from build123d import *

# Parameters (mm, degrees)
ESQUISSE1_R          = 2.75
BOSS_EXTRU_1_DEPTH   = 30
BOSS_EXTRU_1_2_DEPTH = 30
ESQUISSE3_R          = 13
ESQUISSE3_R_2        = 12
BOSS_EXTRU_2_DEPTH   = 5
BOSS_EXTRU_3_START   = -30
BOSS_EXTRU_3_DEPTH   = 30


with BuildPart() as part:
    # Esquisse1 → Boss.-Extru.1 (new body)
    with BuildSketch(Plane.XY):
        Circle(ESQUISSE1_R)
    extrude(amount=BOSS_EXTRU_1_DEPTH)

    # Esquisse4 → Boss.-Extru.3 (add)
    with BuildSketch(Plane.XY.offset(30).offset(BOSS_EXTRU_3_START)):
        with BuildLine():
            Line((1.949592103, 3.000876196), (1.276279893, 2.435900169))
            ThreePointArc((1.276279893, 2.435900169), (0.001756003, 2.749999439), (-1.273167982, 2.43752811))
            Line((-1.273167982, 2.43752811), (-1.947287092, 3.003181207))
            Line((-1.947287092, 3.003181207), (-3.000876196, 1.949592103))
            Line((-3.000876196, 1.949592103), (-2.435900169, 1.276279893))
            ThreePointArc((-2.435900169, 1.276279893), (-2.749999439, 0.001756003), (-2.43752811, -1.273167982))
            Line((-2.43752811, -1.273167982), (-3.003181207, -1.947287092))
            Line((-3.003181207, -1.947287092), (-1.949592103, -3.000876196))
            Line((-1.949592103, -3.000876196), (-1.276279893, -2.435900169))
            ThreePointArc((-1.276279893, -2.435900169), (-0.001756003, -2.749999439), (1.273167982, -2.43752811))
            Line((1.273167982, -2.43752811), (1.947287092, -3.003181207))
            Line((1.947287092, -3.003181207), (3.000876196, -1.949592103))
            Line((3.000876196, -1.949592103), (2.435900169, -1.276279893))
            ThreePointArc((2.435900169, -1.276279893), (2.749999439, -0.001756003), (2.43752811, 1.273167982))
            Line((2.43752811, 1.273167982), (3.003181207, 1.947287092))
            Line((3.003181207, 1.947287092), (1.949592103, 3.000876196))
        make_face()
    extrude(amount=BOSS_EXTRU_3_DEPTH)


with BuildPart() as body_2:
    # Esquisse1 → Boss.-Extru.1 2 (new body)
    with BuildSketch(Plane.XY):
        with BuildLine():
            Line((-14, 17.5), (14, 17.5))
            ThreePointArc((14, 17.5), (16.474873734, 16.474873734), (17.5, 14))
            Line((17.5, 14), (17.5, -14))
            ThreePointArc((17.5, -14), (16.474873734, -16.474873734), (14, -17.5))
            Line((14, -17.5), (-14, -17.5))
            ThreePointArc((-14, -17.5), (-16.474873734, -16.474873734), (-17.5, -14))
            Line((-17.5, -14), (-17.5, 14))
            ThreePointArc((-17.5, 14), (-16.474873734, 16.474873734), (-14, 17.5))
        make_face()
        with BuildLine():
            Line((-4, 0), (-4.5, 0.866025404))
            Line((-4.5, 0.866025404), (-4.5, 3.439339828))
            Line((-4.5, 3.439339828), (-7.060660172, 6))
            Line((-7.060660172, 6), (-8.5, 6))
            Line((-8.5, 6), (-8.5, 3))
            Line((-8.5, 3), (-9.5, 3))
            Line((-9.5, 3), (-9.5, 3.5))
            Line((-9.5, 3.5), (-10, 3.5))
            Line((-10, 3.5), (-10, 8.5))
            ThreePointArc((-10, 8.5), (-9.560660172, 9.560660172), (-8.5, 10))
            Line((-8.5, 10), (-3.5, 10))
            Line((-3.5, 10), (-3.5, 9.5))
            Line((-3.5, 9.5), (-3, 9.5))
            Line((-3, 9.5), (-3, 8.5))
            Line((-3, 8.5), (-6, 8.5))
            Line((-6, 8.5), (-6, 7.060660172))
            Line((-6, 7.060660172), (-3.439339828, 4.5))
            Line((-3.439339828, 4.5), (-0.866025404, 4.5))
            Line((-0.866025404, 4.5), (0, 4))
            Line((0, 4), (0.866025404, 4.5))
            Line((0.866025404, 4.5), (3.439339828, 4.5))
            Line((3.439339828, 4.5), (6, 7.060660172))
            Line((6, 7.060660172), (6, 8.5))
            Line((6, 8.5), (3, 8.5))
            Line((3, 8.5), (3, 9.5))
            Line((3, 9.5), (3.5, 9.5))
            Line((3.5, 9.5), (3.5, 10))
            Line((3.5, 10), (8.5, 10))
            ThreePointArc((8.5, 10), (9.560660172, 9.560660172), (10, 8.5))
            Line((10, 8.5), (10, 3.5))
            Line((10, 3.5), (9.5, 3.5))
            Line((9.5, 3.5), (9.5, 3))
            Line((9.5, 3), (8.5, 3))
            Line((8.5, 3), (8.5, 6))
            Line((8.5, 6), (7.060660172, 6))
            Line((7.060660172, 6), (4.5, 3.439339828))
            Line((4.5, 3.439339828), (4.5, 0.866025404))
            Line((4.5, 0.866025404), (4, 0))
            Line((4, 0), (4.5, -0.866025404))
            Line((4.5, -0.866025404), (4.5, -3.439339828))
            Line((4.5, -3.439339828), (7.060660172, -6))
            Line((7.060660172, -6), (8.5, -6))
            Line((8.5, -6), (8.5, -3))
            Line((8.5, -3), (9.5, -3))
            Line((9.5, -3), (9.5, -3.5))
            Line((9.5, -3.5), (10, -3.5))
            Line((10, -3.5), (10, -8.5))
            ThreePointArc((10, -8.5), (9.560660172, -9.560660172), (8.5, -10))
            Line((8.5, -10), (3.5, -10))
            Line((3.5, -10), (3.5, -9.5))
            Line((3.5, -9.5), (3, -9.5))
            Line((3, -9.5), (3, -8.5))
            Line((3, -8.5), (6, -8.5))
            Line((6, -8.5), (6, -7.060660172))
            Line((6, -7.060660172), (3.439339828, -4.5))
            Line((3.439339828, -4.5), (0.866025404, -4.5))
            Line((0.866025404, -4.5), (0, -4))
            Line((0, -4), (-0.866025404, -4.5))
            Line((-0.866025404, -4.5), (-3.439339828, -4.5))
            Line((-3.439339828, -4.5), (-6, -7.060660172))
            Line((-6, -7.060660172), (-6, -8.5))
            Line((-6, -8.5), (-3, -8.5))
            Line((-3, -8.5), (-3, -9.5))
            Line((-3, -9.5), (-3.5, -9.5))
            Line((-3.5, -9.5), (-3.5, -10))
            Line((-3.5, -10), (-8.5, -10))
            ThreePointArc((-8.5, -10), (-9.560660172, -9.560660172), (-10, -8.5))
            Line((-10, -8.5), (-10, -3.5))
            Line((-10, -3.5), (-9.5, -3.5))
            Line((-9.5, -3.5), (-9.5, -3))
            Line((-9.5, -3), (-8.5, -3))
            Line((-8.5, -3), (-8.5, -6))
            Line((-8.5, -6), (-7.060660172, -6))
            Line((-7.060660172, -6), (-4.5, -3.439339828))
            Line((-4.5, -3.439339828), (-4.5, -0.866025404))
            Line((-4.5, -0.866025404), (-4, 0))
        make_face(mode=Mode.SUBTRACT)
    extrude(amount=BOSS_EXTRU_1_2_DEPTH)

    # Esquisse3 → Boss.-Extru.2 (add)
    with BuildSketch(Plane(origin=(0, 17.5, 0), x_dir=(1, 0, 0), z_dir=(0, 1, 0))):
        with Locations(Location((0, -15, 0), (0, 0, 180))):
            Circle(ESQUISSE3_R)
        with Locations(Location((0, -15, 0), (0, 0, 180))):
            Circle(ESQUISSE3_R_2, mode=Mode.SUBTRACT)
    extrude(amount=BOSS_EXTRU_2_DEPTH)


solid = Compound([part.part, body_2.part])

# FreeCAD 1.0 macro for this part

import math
import FreeCAD as App
import Part
import Sketcher

V = App.Vector
Q = App.Units.Quantity

doc = App.newDocument("Part")
body = doc.addObject("PartDesign::Body", "Body")

sketch1 = body.newObject("Sketcher::SketchObject", "Sketch")
sketch1.AttachmentSupport = (doc.getObject("XY_Plane"), [""])
sketch1.MapMode = "FlatFace"
sketch1.addGeometry(Part.Circle(V(0, 0, 0), V(0, 0, 1), 2.8), False)
sketch1.addConstraint(Sketcher.Constraint("Coincident", 0, 3, -1, 1))
sketch1.addConstraint(Sketcher.Constraint("Diameter", 0, Q("5.5 mm")))
pad1 = body.newObject("PartDesign::Pad", "Pad")
pad1.Profile = sketch1
pad1.Length = 30

sketch2 = body.newObject("Sketcher::SketchObject", "Sketch001")
sketch2.AttachmentSupport = (doc.getObject("XY_Plane"), [""])
sketch2.MapMode = "FlatFace"
sketch2.addGeometry(Part.LineSegment(V(1.9, 3, 0), V(1.3, 2.4, 0)), False)
sketch2.addGeometry(Part.ArcOfCircle(Part.Circle(V(0, 0, 0), V(0, 0, 1), 2.8), math.radians(62), math.radians(118)), False)
sketch2.addGeometry(Part.LineSegment(V(-1.3, 2.4, 0), V(-1.9, 3, 0)), False)
sketch2.addGeometry(Part.LineSegment(V(-1.9, 3, 0), V(-3, 1.9, 0)), False)
sketch2.addGeometry(Part.LineSegment(V(-3, 1.9, 0), V(-2.4, 1.3, 0)), False)
sketch2.addGeometry(Part.ArcOfCircle(Part.Circle(V(0, 0, 0), V(0, 0, 1), 2.8), math.radians(152), math.radians(208)), False)
sketch2.addGeometry(Part.LineSegment(V(-2.4, -1.3, 0), V(-3, -1.9, 0)), False)
sketch2.addGeometry(Part.LineSegment(V(-3, -1.9, 0), V(-1.9, -3, 0)), False)
sketch2.addGeometry(Part.LineSegment(V(-1.9, -3, 0), V(-1.3, -2.4, 0)), False)
sketch2.addGeometry(Part.ArcOfCircle(Part.Circle(V(0, 0, 0), V(0, 0, 1), 2.8), math.radians(-118), math.radians(-62)), False)
sketch2.addGeometry(Part.LineSegment(V(1.3, -2.4, 0), V(1.9, -3, 0)), False)
sketch2.addGeometry(Part.LineSegment(V(1.9, -3, 0), V(3, -1.9, 0)), False)
sketch2.addGeometry(Part.LineSegment(V(3, -1.9, 0), V(2.4, -1.3, 0)), False)
sketch2.addGeometry(Part.ArcOfCircle(Part.Circle(V(0, 0, 0), V(0, 0, 1), 2.8), math.radians(-28), math.radians(28)), False)
sketch2.addGeometry(Part.LineSegment(V(2.4, 1.3, 0), V(3, 1.9, 0)), False)
sketch2.addGeometry(Part.LineSegment(V(3, 1.9, 0), V(1.9, 3, 0)), False)
sketch2.addConstraint(Sketcher.Constraint("Coincident", 0, 2, 1, 1))
sketch2.addConstraint(Sketcher.Constraint("Coincident", 1, 2, 2, 1))
sketch2.addConstraint(Sketcher.Constraint("Coincident", 2, 2, 3, 1))
sketch2.addConstraint(Sketcher.Constraint("Coincident", 3, 2, 4, 1))
sketch2.addConstraint(Sketcher.Constraint("Coincident", 4, 2, 5, 1))
sketch2.addConstraint(Sketcher.Constraint("Coincident", 5, 2, 6, 1))
sketch2.addConstraint(Sketcher.Constraint("Coincident", 6, 2, 7, 1))
sketch2.addConstraint(Sketcher.Constraint("Coincident", 7, 2, 8, 1))
sketch2.addConstraint(Sketcher.Constraint("Coincident", 8, 2, 9, 1))
sketch2.addConstraint(Sketcher.Constraint("Coincident", 9, 2, 10, 1))
sketch2.addConstraint(Sketcher.Constraint("Coincident", 10, 2, 11, 1))
sketch2.addConstraint(Sketcher.Constraint("Coincident", 11, 2, 12, 1))
sketch2.addConstraint(Sketcher.Constraint("Coincident", 12, 2, 13, 1))
sketch2.addConstraint(Sketcher.Constraint("Coincident", 13, 2, 14, 1))
sketch2.addConstraint(Sketcher.Constraint("Coincident", 14, 2, 15, 1))
sketch2.addConstraint(Sketcher.Constraint("Coincident", 15, 2, 0, 1))
sketch2.addConstraint(Sketcher.Constraint("Coincident", 1, 3, -1, 1))
sketch2.addConstraint(Sketcher.Constraint("Coincident", 5, 3, -1, 1))
sketch2.addConstraint(Sketcher.Constraint("Coincident", 9, 3, -1, 1))
sketch2.addConstraint(Sketcher.Constraint("Coincident", 13, 3, -1, 1))
sketch2.addConstraint(Sketcher.Constraint("Equal", 1, 5))
sketch2.addConstraint(Sketcher.Constraint("Equal", 5, 9))
sketch2.addConstraint(Sketcher.Constraint("Equal", 9, 13))
sketch2.addConstraint(Sketcher.Constraint("Symmetric", 2, 2, 10, 2, -1, 1))
sketch2.addConstraint(Sketcher.Constraint("Symmetric", 3, 2, 11, 2, -1, 1))
sketch2.addConstraint(Sketcher.Constraint("Symmetric", 6, 2, 14, 2, -1, 1))
sketch2.addConstraint(Sketcher.Constraint("Symmetric", 7, 2, 15, 2, -1, 1))
sketch2.addConstraint(Sketcher.Constraint("Perpendicular", 0, 4))
sketch2.addConstraint(Sketcher.Constraint("Perpendicular", 2, 6))
sketch2.addConstraint(Sketcher.Constraint("Perpendicular", 3, 7))
sketch2.addConstraint(Sketcher.Constraint("Perpendicular", 4, 8))
sketch2.addConstraint(Sketcher.Constraint("Perpendicular", 6, 10))
sketch2.addConstraint(Sketcher.Constraint("Perpendicular", 8, 12))
sketch2.addConstraint(Sketcher.Constraint("Perpendicular", 10, 14))
sketch2.addConstraint(Sketcher.Constraint("Equal", 0, 4))
sketch2.addConstraint(Sketcher.Constraint("Equal", 2, 6))
sketch2.addConstraint(Sketcher.Constraint("Equal", 3, 7))
sketch2.addConstraint(Sketcher.Constraint("Angle", 0, Q("-140 deg")))
sketch2.addConstraint(Sketcher.Constraint("Angle", 2, Q("140 deg")))
sketch2.addConstraint(Sketcher.Constraint("Angle", 3, Q("-135 deg")))
sketch2.addConstraint(Sketcher.Constraint("Radius", 1, Q("2.75 mm")))
sketch2.addConstraint(Sketcher.Constraint("Distance", 2, Q("0.88 mm")))
sketch2.addConstraint(Sketcher.Constraint("Distance", 3, Q("1.49 mm")))
sketch2.addConstraint(Sketcher.Constraint("DistanceY", -1, 1, 0, 2, Q("2.4359 mm")))
pad2 = body.newObject("PartDesign::Pad", "Pad001")
pad2.Profile = sketch2
pad2.Length = 30
body2 = doc.addObject("PartDesign::Body", "Body001")

sketch3 = body2.newObject("Sketcher::SketchObject", "Sketch002")
sketch3.AttachmentSupport = (doc.getObject("XY_Plane001"), [""])
sketch3.MapMode = "FlatFace"
sketch3.addGeometry(Part.LineSegment(V(14, 17.5, 0), V(-14, 17.5, 0)), False)
sketch3.addGeometry(Part.ArcOfCircle(Part.Circle(V(-14, 14, 0), V(0, 0, 1), 3.5), math.radians(90), math.radians(180)), False)
sketch3.addGeometry(Part.LineSegment(V(-17.5, 14, 0), V(-17.5, -14, 0)), False)
sketch3.addGeometry(Part.ArcOfCircle(Part.Circle(V(-14, -14, 0), V(0, 0, 1), 3.5), math.radians(-180), math.radians(-90)), False)
sketch3.addGeometry(Part.LineSegment(V(-14, -17.5, 0), V(14, -17.5, 0)), False)
sketch3.addGeometry(Part.ArcOfCircle(Part.Circle(V(14, -14, 0), V(0, 0, 1), 3.5), math.radians(-90), math.radians(0)), False)
sketch3.addGeometry(Part.LineSegment(V(17.5, -14, 0), V(17.5, 14, 0)), False)
sketch3.addGeometry(Part.ArcOfCircle(Part.Circle(V(14, 14, 0), V(0, 0, 1), 3.5), math.radians(0), math.radians(90)), False)
sketch3.addGeometry(Part.LineSegment(V(-4, 0, 0), V(-4.5, 0.9, 0)), False)
sketch3.addGeometry(Part.LineSegment(V(-4.5, 0.9, 0), V(-4.5, 3.4, 0)), False)
sketch3.addGeometry(Part.LineSegment(V(-4.5, 3.4, 0), V(-7.1, 6, 0)), False)
sketch3.addGeometry(Part.LineSegment(V(-7.1, 6, 0), V(-8.5, 6, 0)), False)
sketch3.addGeometry(Part.LineSegment(V(-8.5, 6, 0), V(-8.5, 3, 0)), False)
sketch3.addGeometry(Part.LineSegment(V(-8.5, 3, 0), V(-9.5, 3, 0)), False)
sketch3.addGeometry(Part.LineSegment(V(-9.5, 3, 0), V(-9.5, 3.5, 0)), False)
sketch3.addGeometry(Part.LineSegment(V(-9.5, 3.5, 0), V(-10, 3.5, 0)), False)
sketch3.addGeometry(Part.LineSegment(V(-10, 3.5, 0), V(-10, 8.5, 0)), False)
sketch3.addGeometry(Part.ArcOfCircle(Part.Circle(V(-8.5, 8.5, 0), V(0, 0, 1), 1.5), math.radians(90), math.radians(180)), False)
sketch3.addGeometry(Part.LineSegment(V(-8.5, 10, 0), V(-3.5, 10, 0)), False)
sketch3.addGeometry(Part.LineSegment(V(-3.5, 10, 0), V(-3.5, 9.5, 0)), False)
sketch3.addGeometry(Part.LineSegment(V(-3.5, 9.5, 0), V(-3, 9.5, 0)), False)
sketch3.addGeometry(Part.LineSegment(V(-3, 9.5, 0), V(-3, 8.5, 0)), False)
sketch3.addGeometry(Part.LineSegment(V(-3, 8.5, 0), V(-6, 8.5, 0)), False)
sketch3.addGeometry(Part.LineSegment(V(-6, 8.5, 0), V(-6, 7.1, 0)), False)
sketch3.addGeometry(Part.LineSegment(V(-6, 7.1, 0), V(-3.4, 4.5, 0)), False)
sketch3.addGeometry(Part.LineSegment(V(-3.4, 4.5, 0), V(-0.9, 4.5, 0)), False)
sketch3.addGeometry(Part.LineSegment(V(-0.9, 4.5, 0), V(0, 4, 0)), False)
sketch3.addGeometry(Part.LineSegment(V(0, 4, 0), V(0.9, 4.5, 0)), False)
sketch3.addGeometry(Part.LineSegment(V(0.9, 4.5, 0), V(3.4, 4.5, 0)), False)
sketch3.addGeometry(Part.LineSegment(V(3.4, 4.5, 0), V(6, 7.1, 0)), False)
sketch3.addGeometry(Part.LineSegment(V(6, 7.1, 0), V(6, 8.5, 0)), False)
sketch3.addGeometry(Part.LineSegment(V(6, 8.5, 0), V(3, 8.5, 0)), False)
sketch3.addGeometry(Part.LineSegment(V(3, 8.5, 0), V(3, 9.5, 0)), False)
sketch3.addGeometry(Part.LineSegment(V(3, 9.5, 0), V(3.5, 9.5, 0)), False)
sketch3.addGeometry(Part.LineSegment(V(3.5, 9.5, 0), V(3.5, 10, 0)), False)
sketch3.addGeometry(Part.LineSegment(V(3.5, 10, 0), V(8.5, 10, 0)), False)
sketch3.addGeometry(Part.ArcOfCircle(Part.Circle(V(8.5, 8.5, 0), V(0, 0, 1), 1.5), math.radians(0), math.radians(90)), False)
sketch3.addGeometry(Part.LineSegment(V(10, 8.5, 0), V(10, 3.5, 0)), False)
sketch3.addGeometry(Part.LineSegment(V(10, 3.5, 0), V(9.5, 3.5, 0)), False)
sketch3.addGeometry(Part.LineSegment(V(9.5, 3.5, 0), V(9.5, 3, 0)), False)
sketch3.addGeometry(Part.LineSegment(V(9.5, 3, 0), V(8.5, 3, 0)), False)
sketch3.addGeometry(Part.LineSegment(V(8.5, 3, 0), V(8.5, 6, 0)), False)
sketch3.addGeometry(Part.LineSegment(V(8.5, 6, 0), V(7.1, 6, 0)), False)
sketch3.addGeometry(Part.LineSegment(V(7.1, 6, 0), V(4.5, 3.4, 0)), False)
sketch3.addGeometry(Part.LineSegment(V(4.5, 3.4, 0), V(4.5, 0.9, 0)), False)
sketch3.addGeometry(Part.LineSegment(V(4.5, 0.9, 0), V(4, 0, 0)), False)
sketch3.addGeometry(Part.LineSegment(V(4, 0, 0), V(4.5, -0.9, 0)), False)
sketch3.addGeometry(Part.LineSegment(V(4.5, -0.9, 0), V(4.5, -3.4, 0)), False)
sketch3.addGeometry(Part.LineSegment(V(4.5, -3.4, 0), V(7.1, -6, 0)), False)
sketch3.addGeometry(Part.LineSegment(V(7.1, -6, 0), V(8.5, -6, 0)), False)
sketch3.addGeometry(Part.LineSegment(V(8.5, -6, 0), V(8.5, -3, 0)), False)
sketch3.addGeometry(Part.LineSegment(V(8.5, -3, 0), V(9.5, -3, 0)), False)
sketch3.addGeometry(Part.LineSegment(V(9.5, -3, 0), V(9.5, -3.5, 0)), False)
sketch3.addGeometry(Part.LineSegment(V(9.5, -3.5, 0), V(10, -3.5, 0)), False)
sketch3.addGeometry(Part.LineSegment(V(10, -3.5, 0), V(10, -8.5, 0)), False)
sketch3.addGeometry(Part.ArcOfCircle(Part.Circle(V(8.5, -8.5, 0), V(0, 0, 1), 1.5), math.radians(-90), math.radians(0)), False)
sketch3.addGeometry(Part.LineSegment(V(8.5, -10, 0), V(3.5, -10, 0)), False)
sketch3.addGeometry(Part.LineSegment(V(3.5, -10, 0), V(3.5, -9.5, 0)), False)
sketch3.addGeometry(Part.LineSegment(V(3.5, -9.5, 0), V(3, -9.5, 0)), False)
sketch3.addGeometry(Part.LineSegment(V(3, -9.5, 0), V(3, -8.5, 0)), False)
sketch3.addGeometry(Part.LineSegment(V(3, -8.5, 0), V(6, -8.5, 0)), False)
sketch3.addGeometry(Part.LineSegment(V(6, -8.5, 0), V(6, -7.1, 0)), False)
sketch3.addGeometry(Part.LineSegment(V(6, -7.1, 0), V(3.4, -4.5, 0)), False)
sketch3.addGeometry(Part.LineSegment(V(3.4, -4.5, 0), V(0.9, -4.5, 0)), False)
sketch3.addGeometry(Part.LineSegment(V(0.9, -4.5, 0), V(0, -4, 0)), False)
sketch3.addGeometry(Part.LineSegment(V(0, -4, 0), V(-0.9, -4.5, 0)), False)
sketch3.addGeometry(Part.LineSegment(V(-0.9, -4.5, 0), V(-3.4, -4.5, 0)), False)
sketch3.addGeometry(Part.LineSegment(V(-3.4, -4.5, 0), V(-6, -7.1, 0)), False)
sketch3.addGeometry(Part.LineSegment(V(-6, -7.1, 0), V(-6, -8.5, 0)), False)
sketch3.addGeometry(Part.LineSegment(V(-6, -8.5, 0), V(-3, -8.5, 0)), False)
sketch3.addGeometry(Part.LineSegment(V(-3, -8.5, 0), V(-3, -9.5, 0)), False)
sketch3.addGeometry(Part.LineSegment(V(-3, -9.5, 0), V(-3.5, -9.5, 0)), False)
sketch3.addGeometry(Part.LineSegment(V(-3.5, -9.5, 0), V(-3.5, -10, 0)), False)
sketch3.addGeometry(Part.LineSegment(V(-3.5, -10, 0), V(-8.5, -10, 0)), False)
sketch3.addGeometry(Part.ArcOfCircle(Part.Circle(V(-8.5, -8.5, 0), V(0, 0, 1), 1.5), math.radians(180), math.radians(270)), False)
sketch3.addGeometry(Part.LineSegment(V(-10, -8.5, 0), V(-10, -3.5, 0)), False)
sketch3.addGeometry(Part.LineSegment(V(-10, -3.5, 0), V(-9.5, -3.5, 0)), False)
sketch3.addGeometry(Part.LineSegment(V(-9.5, -3.5, 0), V(-9.5, -3, 0)), False)
sketch3.addGeometry(Part.LineSegment(V(-9.5, -3, 0), V(-8.5, -3, 0)), False)
sketch3.addGeometry(Part.LineSegment(V(-8.5, -3, 0), V(-8.5, -6, 0)), False)
sketch3.addGeometry(Part.LineSegment(V(-8.5, -6, 0), V(-7.1, -6, 0)), False)
sketch3.addGeometry(Part.LineSegment(V(-7.1, -6, 0), V(-4.5, -3.4, 0)), False)
sketch3.addGeometry(Part.LineSegment(V(-4.5, -3.4, 0), V(-4.5, -0.9, 0)), False)
sketch3.addGeometry(Part.LineSegment(V(-4.5, -0.9, 0), V(-4, 0, 0)), False)
sketch3.addConstraint(Sketcher.Constraint("Tangent", 0, 2, 1, 1))
sketch3.addConstraint(Sketcher.Constraint("Tangent", 1, 2, 2, 1))
sketch3.addConstraint(Sketcher.Constraint("Tangent", 2, 2, 3, 1))
sketch3.addConstraint(Sketcher.Constraint("Tangent", 3, 2, 4, 1))
sketch3.addConstraint(Sketcher.Constraint("Tangent", 4, 2, 5, 1))
sketch3.addConstraint(Sketcher.Constraint("Tangent", 5, 2, 6, 1))
sketch3.addConstraint(Sketcher.Constraint("Tangent", 6, 2, 7, 1))
sketch3.addConstraint(Sketcher.Constraint("Tangent", 7, 2, 0, 1))
sketch3.addConstraint(Sketcher.Constraint("Coincident", 8, 2, 9, 1))
sketch3.addConstraint(Sketcher.Constraint("Coincident", 9, 2, 10, 1))
sketch3.addConstraint(Sketcher.Constraint("Coincident", 10, 2, 11, 1))
sketch3.addConstraint(Sketcher.Constraint("Coincident", 11, 2, 12, 1))
sketch3.addConstraint(Sketcher.Constraint("Coincident", 12, 2, 13, 1))
sketch3.addConstraint(Sketcher.Constraint("Coincident", 13, 2, 14, 1))
sketch3.addConstraint(Sketcher.Constraint("Coincident", 14, 2, 15, 1))
sketch3.addConstraint(Sketcher.Constraint("Coincident", 15, 2, 16, 1))
sketch3.addConstraint(Sketcher.Constraint("Tangent", 16, 2, 17, 2))
sketch3.addConstraint(Sketcher.Constraint("Tangent", 17, 1, 18, 1))
sketch3.addConstraint(Sketcher.Constraint("Coincident", 18, 2, 19, 1))
sketch3.addConstraint(Sketcher.Constraint("Coincident", 19, 2, 20, 1))
sketch3.addConstraint(Sketcher.Constraint("Coincident", 20, 2, 21, 1))
sketch3.addConstraint(Sketcher.Constraint("Coincident", 21, 2, 22, 1))
sketch3.addConstraint(Sketcher.Constraint("Coincident", 22, 2, 23, 1))
sketch3.addConstraint(Sketcher.Constraint("Coincident", 23, 2, 24, 1))
sketch3.addConstraint(Sketcher.Constraint("Coincident", 24, 2, 25, 1))
sketch3.addConstraint(Sketcher.Constraint("Coincident", 25, 2, 26, 1))
sketch3.addConstraint(Sketcher.Constraint("Coincident", 26, 2, 27, 1))
sketch3.addConstraint(Sketcher.Constraint("Coincident", 27, 2, 28, 1))
sketch3.addConstraint(Sketcher.Constraint("Coincident", 28, 2, 29, 1))
sketch3.addConstraint(Sketcher.Constraint("Coincident", 29, 2, 30, 1))
sketch3.addConstraint(Sketcher.Constraint("Coincident", 30, 2, 31, 1))
sketch3.addConstraint(Sketcher.Constraint("Coincident", 31, 2, 32, 1))
sketch3.addConstraint(Sketcher.Constraint("Coincident", 32, 2, 33, 1))
sketch3.addConstraint(Sketcher.Constraint("Coincident", 33, 2, 34, 1))
sketch3.addConstraint(Sketcher.Constraint("Coincident", 34, 2, 35, 1))
sketch3.addConstraint(Sketcher.Constraint("Tangent", 35, 2, 36, 2))
sketch3.addConstraint(Sketcher.Constraint("Tangent", 36, 1, 37, 1))
sketch3.addConstraint(Sketcher.Constraint("Coincident", 37, 2, 38, 1))
sketch3.addConstraint(Sketcher.Constraint("Coincident", 38, 2, 39, 1))
sketch3.addConstraint(Sketcher.Constraint("Coincident", 39, 2, 40, 1))
sketch3.addConstraint(Sketcher.Constraint("Coincident", 40, 2, 41, 1))
sketch3.addConstraint(Sketcher.Constraint("Coincident", 41, 2, 42, 1))
sketch3.addConstraint(Sketcher.Constraint("Coincident", 42, 2, 43, 1))
sketch3.addConstraint(Sketcher.Constraint("Coincident", 43, 2, 44, 1))
sketch3.addConstraint(Sketcher.Constraint("Coincident", 44, 2, 45, 1))
sketch3.addConstraint(Sketcher.Constraint("Coincident", 45, 2, 46, 1))
sketch3.addConstraint(Sketcher.Constraint("Coincident", 46, 2, 47, 1))
sketch3.addConstraint(Sketcher.Constraint("Coincident", 47, 2, 48, 1))
sketch3.addConstraint(Sketcher.Constraint("Coincident", 48, 2, 49, 1))
sketch3.addConstraint(Sketcher.Constraint("Coincident", 49, 2, 50, 1))
sketch3.addConstraint(Sketcher.Constraint("Coincident", 50, 2, 51, 1))
sketch3.addConstraint(Sketcher.Constraint("Coincident", 51, 2, 52, 1))
sketch3.addConstraint(Sketcher.Constraint("Coincident", 52, 2, 53, 1))
sketch3.addConstraint(Sketcher.Constraint("Coincident", 53, 2, 54, 1))
sketch3.addConstraint(Sketcher.Constraint("Tangent", 54, 2, 55, 2))
sketch3.addConstraint(Sketcher.Constraint("Tangent", 55, 1, 56, 1))
sketch3.addConstraint(Sketcher.Constraint("Coincident", 56, 2, 57, 1))
sketch3.addConstraint(Sketcher.Constraint("Coincident", 57, 2, 58, 1))
sketch3.addConstraint(Sketcher.Constraint("Coincident", 58, 2, 59, 1))
sketch3.addConstraint(Sketcher.Constraint("Coincident", 59, 2, 60, 1))
sketch3.addConstraint(Sketcher.Constraint("Coincident", 60, 2, 61, 1))
sketch3.addConstraint(Sketcher.Constraint("Coincident", 61, 2, 62, 1))
sketch3.addConstraint(Sketcher.Constraint("Coincident", 62, 2, 63, 1))
sketch3.addConstraint(Sketcher.Constraint("Coincident", 63, 2, 64, 1))
sketch3.addConstraint(Sketcher.Constraint("Coincident", 64, 2, 65, 1))
sketch3.addConstraint(Sketcher.Constraint("Coincident", 65, 2, 66, 1))
sketch3.addConstraint(Sketcher.Constraint("Coincident", 66, 2, 67, 1))
sketch3.addConstraint(Sketcher.Constraint("Coincident", 67, 2, 68, 1))
sketch3.addConstraint(Sketcher.Constraint("Coincident", 68, 2, 69, 1))
sketch3.addConstraint(Sketcher.Constraint("Coincident", 69, 2, 70, 1))
sketch3.addConstraint(Sketcher.Constraint("Coincident", 70, 2, 71, 1))
sketch3.addConstraint(Sketcher.Constraint("Coincident", 71, 2, 72, 1))
sketch3.addConstraint(Sketcher.Constraint("Coincident", 72, 2, 73, 1))
sketch3.addConstraint(Sketcher.Constraint("Tangent", 73, 2, 74, 2))
sketch3.addConstraint(Sketcher.Constraint("Tangent", 74, 1, 75, 1))
sketch3.addConstraint(Sketcher.Constraint("Coincident", 75, 2, 76, 1))
sketch3.addConstraint(Sketcher.Constraint("Coincident", 76, 2, 77, 1))
sketch3.addConstraint(Sketcher.Constraint("Coincident", 77, 2, 78, 1))
sketch3.addConstraint(Sketcher.Constraint("Coincident", 78, 2, 79, 1))
sketch3.addConstraint(Sketcher.Constraint("Coincident", 79, 2, 80, 1))
sketch3.addConstraint(Sketcher.Constraint("Coincident", 80, 2, 81, 1))
sketch3.addConstraint(Sketcher.Constraint("Coincident", 81, 2, 82, 1))
sketch3.addConstraint(Sketcher.Constraint("Coincident", 82, 2, 83, 1))
sketch3.addConstraint(Sketcher.Constraint("Coincident", 83, 2, 8, 1))
sketch3.addConstraint(Sketcher.Constraint("Horizontal", 0))
sketch3.addConstraint(Sketcher.Constraint("Vertical", 2))
sketch3.addConstraint(Sketcher.Constraint("Horizontal", 4))
sketch3.addConstraint(Sketcher.Constraint("Vertical", 6))
sketch3.addConstraint(Sketcher.Constraint("Vertical", 9))
sketch3.addConstraint(Sketcher.Constraint("Horizontal", 11))
sketch3.addConstraint(Sketcher.Constraint("Vertical", 12))
sketch3.addConstraint(Sketcher.Constraint("Horizontal", 13))
sketch3.addConstraint(Sketcher.Constraint("Vertical", 14))
sketch3.addConstraint(Sketcher.Constraint("Horizontal", 15))
sketch3.addConstraint(Sketcher.Constraint("Vertical", 16))
sketch3.addConstraint(Sketcher.Constraint("Horizontal", 18))
sketch3.addConstraint(Sketcher.Constraint("Vertical", 19))
sketch3.addConstraint(Sketcher.Constraint("Horizontal", 20))
sketch3.addConstraint(Sketcher.Constraint("Vertical", 21))
sketch3.addConstraint(Sketcher.Constraint("Horizontal", 22))
sketch3.addConstraint(Sketcher.Constraint("Vertical", 23))
sketch3.addConstraint(Sketcher.Constraint("Horizontal", 25))
sketch3.addConstraint(Sketcher.Constraint("Horizontal", 28))
sketch3.addConstraint(Sketcher.Constraint("Vertical", 30))
sketch3.addConstraint(Sketcher.Constraint("Horizontal", 31))
sketch3.addConstraint(Sketcher.Constraint("Vertical", 32))
sketch3.addConstraint(Sketcher.Constraint("Horizontal", 33))
sketch3.addConstraint(Sketcher.Constraint("Vertical", 34))
sketch3.addConstraint(Sketcher.Constraint("Horizontal", 35))
sketch3.addConstraint(Sketcher.Constraint("Vertical", 37))
sketch3.addConstraint(Sketcher.Constraint("Horizontal", 38))
sketch3.addConstraint(Sketcher.Constraint("Vertical", 39))
sketch3.addConstraint(Sketcher.Constraint("Horizontal", 40))
sketch3.addConstraint(Sketcher.Constraint("Vertical", 41))
sketch3.addConstraint(Sketcher.Constraint("Horizontal", 42))
sketch3.addConstraint(Sketcher.Constraint("Vertical", 44))
sketch3.addConstraint(Sketcher.Constraint("Vertical", 47))
sketch3.addConstraint(Sketcher.Constraint("Horizontal", 49))
sketch3.addConstraint(Sketcher.Constraint("Vertical", 50))
sketch3.addConstraint(Sketcher.Constraint("Horizontal", 51))
sketch3.addConstraint(Sketcher.Constraint("Vertical", 52))
sketch3.addConstraint(Sketcher.Constraint("Horizontal", 53))
sketch3.addConstraint(Sketcher.Constraint("Vertical", 54))
sketch3.addConstraint(Sketcher.Constraint("Horizontal", 56))
sketch3.addConstraint(Sketcher.Constraint("Vertical", 57))
sketch3.addConstraint(Sketcher.Constraint("Horizontal", 58))
sketch3.addConstraint(Sketcher.Constraint("Vertical", 59))
sketch3.addConstraint(Sketcher.Constraint("Horizontal", 60))
sketch3.addConstraint(Sketcher.Constraint("Vertical", 61))
sketch3.addConstraint(Sketcher.Constraint("Horizontal", 63))
sketch3.addConstraint(Sketcher.Constraint("Horizontal", 66))
sketch3.addConstraint(Sketcher.Constraint("Vertical", 68))
sketch3.addConstraint(Sketcher.Constraint("Horizontal", 69))
sketch3.addConstraint(Sketcher.Constraint("Vertical", 70))
sketch3.addConstraint(Sketcher.Constraint("Horizontal", 71))
sketch3.addConstraint(Sketcher.Constraint("Vertical", 72))
sketch3.addConstraint(Sketcher.Constraint("Horizontal", 73))
sketch3.addConstraint(Sketcher.Constraint("Vertical", 75))
sketch3.addConstraint(Sketcher.Constraint("Horizontal", 76))
sketch3.addConstraint(Sketcher.Constraint("Vertical", 77))
sketch3.addConstraint(Sketcher.Constraint("Horizontal", 78))
sketch3.addConstraint(Sketcher.Constraint("Vertical", 79))
sketch3.addConstraint(Sketcher.Constraint("Horizontal", 80))
sketch3.addConstraint(Sketcher.Constraint("Vertical", 82))
sketch3.addConstraint(Sketcher.Constraint("Equal", 1, 3))
sketch3.addConstraint(Sketcher.Constraint("Equal", 3, 5))
sketch3.addConstraint(Sketcher.Constraint("Equal", 5, 7))
sketch3.addConstraint(Sketcher.Constraint("Equal", 17, 36))
sketch3.addConstraint(Sketcher.Constraint("Equal", 36, 55))
sketch3.addConstraint(Sketcher.Constraint("Equal", 55, 74))
sketch3.addConstraint(Sketcher.Constraint("Symmetric", 1, 3, 5, 3, -1, 1))
sketch3.addConstraint(Sketcher.Constraint("Symmetric", 17, 3, 55, 3, -1, 1))
sketch3.addConstraint(Sketcher.Constraint("Symmetric", 36, 3, 74, 3, -1, 1))
sketch3.addConstraint(Sketcher.Constraint("Symmetric", 8, 2, 46, 2, -1, 1))
sketch3.addConstraint(Sketcher.Constraint("Symmetric", 10, 2, 48, 2, -1, 1))
sketch3.addConstraint(Sketcher.Constraint("Symmetric", 12, 2, 50, 2, -1, 1))
sketch3.addConstraint(Sketcher.Constraint("Symmetric", 14, 2, 52, 2, -1, 1))
sketch3.addConstraint(Sketcher.Constraint("Symmetric", 19, 2, 57, 2, -1, 1))
sketch3.addConstraint(Sketcher.Constraint("Symmetric", 21, 2, 59, 2, -1, 1))
sketch3.addConstraint(Sketcher.Constraint("Symmetric", 23, 2, 61, 2, -1, 1))
sketch3.addConstraint(Sketcher.Constraint("Symmetric", 24, 2, 62, 2, -1, 1))
sketch3.addConstraint(Sketcher.Constraint("Symmetric", 26, 2, 64, 2, -1, 1))
sketch3.addConstraint(Sketcher.Constraint("Symmetric", 27, 2, 65, 2, -1, 1))
sketch3.addConstraint(Sketcher.Constraint("Symmetric", 29, 2, 67, 2, -1, 1))
sketch3.addConstraint(Sketcher.Constraint("Symmetric", 31, 2, 69, 2, -1, 1))
sketch3.addConstraint(Sketcher.Constraint("Symmetric", 33, 2, 71, 2, -1, 1))
sketch3.addConstraint(Sketcher.Constraint("Symmetric", 38, 2, 76, 2, -1, 1))
sketch3.addConstraint(Sketcher.Constraint("Symmetric", 40, 2, 78, 2, -1, 1))
sketch3.addConstraint(Sketcher.Constraint("Symmetric", 42, 2, 80, 2, -1, 1))
sketch3.addConstraint(Sketcher.Constraint("Symmetric", 43, 2, 81, 2, -1, 1))
sketch3.addConstraint(Sketcher.Constraint("Symmetric", 45, 2, 83, 2, -1, 1))
sketch3.addConstraint(Sketcher.Constraint("Symmetric", 17, 3, 36, 3, -2))
sketch3.addConstraint(Sketcher.Constraint("Symmetric", 25, 2, 27, 2, -2))
sketch3.addConstraint(Sketcher.Constraint("Symmetric", 23, 2, 29, 2, -2))
sketch3.addConstraint(Sketcher.Constraint("Symmetric", 21, 2, 31, 2, -2))
sketch3.addConstraint(Sketcher.Constraint("Symmetric", 19, 2, 33, 2, -2))
sketch3.addConstraint(Sketcher.Constraint("Symmetric", 14, 2, 38, 2, -2))
sketch3.addConstraint(Sketcher.Constraint("Symmetric", 12, 2, 40, 2, -2))
sketch3.addConstraint(Sketcher.Constraint("Symmetric", 10, 2, 42, 2, -2))
sketch3.addConstraint(Sketcher.Constraint("Symmetric", 9, 2, 43, 2, -2))
sketch3.addConstraint(Sketcher.Constraint("PointOnObject", 26, 2, -2))
sketch3.addConstraint(Sketcher.Constraint("PointOnObject", 45, 2, -1))
sketch3.addConstraint(Sketcher.Constraint("Parallel", 10, 24))
sketch3.addConstraint(Sketcher.Constraint("Perpendicular", 8, 27))
sketch3.addConstraint(Sketcher.Constraint("Perpendicular", 24, 29))
sketch3.addConstraint(Sketcher.Constraint("Parallel", 29, 43))
sketch3.addConstraint(Sketcher.Constraint("Perpendicular", 26, 45))
sketch3.addConstraint(Sketcher.Constraint("Perpendicular", 43, 48))
sketch3.addConstraint(Sketcher.Constraint("Perpendicular", 45, 64))
sketch3.addConstraint(Sketcher.Constraint("Perpendicular", 62, 67))
sketch3.addConstraint(Sketcher.Constraint("Perpendicular", 64, 83))
sketch3.addConstraint(Sketcher.Constraint("Horizontal", 16, 2, 21, 2))
sketch3.addConstraint(Sketcher.Constraint("Vertical", 74, 3, 11, 2))
sketch3.addConstraint(Sketcher.Constraint("Equal", 15, 20))
sketch3.addConstraint(Sketcher.Constraint("Equal", 4, 2))
sketch3.addConstraint(Sketcher.Constraint("Equal", 66, 9))
sketch3.addConstraint(Sketcher.Constraint("Equal", 69, 12))
sketch3.addConstraint(Sketcher.Constraint("Equal", 76, 14))
sketch3.addConstraint(Sketcher.Constraint("Equal", 73, 16))
sketch3.addConstraint(Sketcher.Constraint("Equal", 14, 19))
sketch3.addConstraint(Sketcher.Constraint("Equal", 80, 23))
sketch3.addConstraint(Sketcher.Constraint("Equal", 10, 24))
sketch3.addConstraint(Sketcher.Constraint("Equal", 8, 26))
sketch3.addConstraint(Sketcher.Constraint("Radius", 1, Q("3.5 mm")))
sketch3.addConstraint(Sketcher.Constraint("Radius", 17, Q("1.5 mm")))
sketch3.addConstraint(Sketcher.Constraint("DistanceX", 0, 2, 0, 1, Q("28 mm")))
sketch3.addConstraint(Sketcher.Constraint("DistanceX", 13, 2, 13, 1, Q("1 mm")))
sketch3.addConstraint(Sketcher.Constraint("DistanceX", 18, 1, 18, 2, Q("5 mm")))
sketch3.addConstraint(Sketcher.Constraint("DistanceX", 22, 2, 22, 1, Q("3 mm")))
sketch3.addConstraint(Sketcher.Constraint("Angle", 8, Q("120 deg")))
sketch3.addConstraint(Sketcher.Constraint("Distance", 8, Q("1 mm")))
sketch3.addConstraint(Sketcher.Constraint("DistanceY", -1, 1, 10, 2, Q("6 mm")))
sketch3.addConstraint(Sketcher.Constraint("DistanceY", -1, 1, 26, 2, Q("4 mm")))
sketch3.addConstraint(Sketcher.Constraint("DistanceX", 11, 2, 11, 1, Q("1.43934 mm")))
pad3 = body2.newObject("PartDesign::Pad", "Pad002")
pad3.Profile = sketch3
pad3.Length = 30

sketch4 = body2.newObject("Sketcher::SketchObject", "Sketch003")
sketch4.AttachmentSupport = (doc.getObject("XZ_Plane001"), [""])
sketch4.MapMode = "FlatFace"
sketch4.AttachmentOffset = App.Placement(V(0, 0, -17.5), App.Rotation())
sketch4.addGeometry(Part.Circle(V(0, 15, 0), V(0, 0, 1), 13), False)
sketch4.addGeometry(Part.Circle(V(0, 15, 0), V(0, 0, 1), 12), False)
sketch4.addConstraint(Sketcher.Constraint("Coincident", 1, 3, 0, 3))
sketch4.addConstraint(Sketcher.Constraint("PointOnObject", 0, 3, -2))
sketch4.addConstraint(Sketcher.Constraint("Diameter", 0, Q("26 mm")))
sketch4.addConstraint(Sketcher.Constraint("Diameter", 1, Q("24 mm")))
sketch4.addConstraint(Sketcher.Constraint("DistanceY", -1, 1, 0, 3, Q("15 mm")))
pad4 = body2.newObject("PartDesign::Pad", "Pad003")
pad4.Profile = sketch4
pad4.Length = 5
pad4.Reversed = True

doc.recompute()
